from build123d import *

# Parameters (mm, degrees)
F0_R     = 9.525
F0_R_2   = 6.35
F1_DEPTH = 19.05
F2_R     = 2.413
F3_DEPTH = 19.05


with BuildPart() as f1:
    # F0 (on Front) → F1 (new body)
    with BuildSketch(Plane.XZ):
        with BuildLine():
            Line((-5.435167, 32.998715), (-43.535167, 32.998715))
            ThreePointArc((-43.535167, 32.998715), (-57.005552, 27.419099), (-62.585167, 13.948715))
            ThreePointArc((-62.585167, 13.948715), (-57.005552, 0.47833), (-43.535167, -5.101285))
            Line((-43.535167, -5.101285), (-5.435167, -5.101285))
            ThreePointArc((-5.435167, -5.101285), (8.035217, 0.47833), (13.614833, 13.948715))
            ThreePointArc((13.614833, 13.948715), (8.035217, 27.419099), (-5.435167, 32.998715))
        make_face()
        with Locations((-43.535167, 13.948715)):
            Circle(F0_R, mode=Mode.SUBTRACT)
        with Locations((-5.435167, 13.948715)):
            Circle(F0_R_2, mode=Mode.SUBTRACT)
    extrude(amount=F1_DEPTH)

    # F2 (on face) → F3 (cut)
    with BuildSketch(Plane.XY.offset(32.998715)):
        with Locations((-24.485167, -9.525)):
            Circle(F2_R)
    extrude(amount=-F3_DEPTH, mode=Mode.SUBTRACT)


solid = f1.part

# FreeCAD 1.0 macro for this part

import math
import FreeCAD as App
import Part
import Sketcher

V = App.Vector
Q = App.Units.Quantity

doc = App.newDocument("Part")
body = doc.addObject("PartDesign::Body", "Body")

# Sketch on XZ plane
sketch1 = body.newObject("Sketcher::SketchObject", "Sketch")
sketch1.AttachmentSupport = (doc.getObject("XZ_Plane"), [""])
sketch1.MapMode = "FlatFace"
sketch1.addGeometry([
    Part.LineSegment(V(-5.435167, 32.998715, 0), V(-43.535167, 32.998715, 0)),  # 0
    Part.ArcOfCircle(Part.Circle(V(-43.535168, 13.948716, 0), V(0, 0, 1), 19.049999), math.radians(89.999997), math.radians(180.000003)),  # 1
    Part.ArcOfCircle(Part.Circle(V(-43.53517, 13.948712, 0), V(0, 0, 1), 19.049997), math.radians(179.999992), math.radians(270.000008)),  # 2
    Part.LineSegment(V(-43.535167, -5.101285, 0), V(-5.435167, -5.101285, 0)),  # 3
    Part.ArcOfCircle(Part.Circle(V(-5.435166, 13.948714, 0), V(0, 0, 1), 19.049999), math.radians(-90.000003), math.radians(0.000003)),  # 4
    Part.ArcOfCircle(Part.Circle(V(-5.435168, 13.948714, 0), V(0, 0, 1), 19.050001), math.radians(0.000002), math.radians(89.999998)),  # 5
    Part.Circle(V(-43.535167, 13.948715, 0), V(0, 0, 1), 9.525),  # 6
    Part.Circle(V(-5.435167, 13.948715, 0), V(0, 0, 1), 6.35),  # 7
], False)
sketch1.addConstraint([
    Sketcher.Constraint("Tangent", 0, 2, 1, 1),
    Sketcher.Constraint("Tangent", 1, 2, 2, 1),
    Sketcher.Constraint("Tangent", 2, 2, 3, 1),
    Sketcher.Constraint("Tangent", 3, 2, 4, 1),
    Sketcher.Constraint("Tangent", 4, 2, 5, 1),
    Sketcher.Constraint("Tangent", 5, 2, 0, 1),
    Sketcher.Constraint("Horizontal", 0),
    Sketcher.Constraint("Horizontal", 3),
    Sketcher.Constraint("Coincident", 6, 3, 1, 3),
    Sketcher.Constraint("Coincident", 7, 3, 4, 3),
    Sketcher.Constraint("Equal", 1, 2),
    Sketcher.Constraint("Equal", 2, 4),
    Sketcher.Constraint("Horizontal", 7, 3, 1, 2),
    Sketcher.Constraint("Horizontal", 1, 2, 4, 2),
    Sketcher.Constraint("Diameter", 7, Q("0.5 in")),
    Sketcher.Constraint("Diameter", 6, Q("0.75 in")),
    Sketcher.Constraint("Radius", 1, Q("0.75 in")),
    Sketcher.Constraint("DistanceX", 0, 2, 0, 1, Q("1.5 in")),
    Sketcher.Constraint("DistanceX", 1, 3, -1, 1, 43.535168),
    Sketcher.Constraint("DistanceY", -1, 1, 1, 3, 13.948716),
])
pad1 = body.newObject("PartDesign::Pad", "Pad")
pad1.Profile = sketch1
pad1.Length = Q("0.75 in")

# Sketch on XY plane
sketch2 = body.newObject("Sketcher::SketchObject", "Sketch001")
sketch2.AttachmentSupport = (doc.getObject("XY_Plane"), [""])
sketch2.MapMode = "FlatFace"
sketch2.AttachmentOffset = App.Placement(V(0, 0, 32.998715), App.Rotation())
sketch2.addGeometry(Part.Circle(V(-24.485167, -9.525, 0), V(0, 0, 1), 2.413), False)
sketch2.addConstraint([
    Sketcher.Constraint("Diameter", 0, Q("0.19 in")),
    Sketcher.Constraint("DistanceY", 0, 3, -1, 1, Q("0.375 in")),
    Sketcher.Constraint("DistanceX", 0, 3, -1, 1, 24.485167),
])
pocket1 = body.newObject("PartDesign::Pocket", "Pocket")
pocket1.Profile = sketch2
pocket1.Length = Q("0.75 in")

doc.recompute()
